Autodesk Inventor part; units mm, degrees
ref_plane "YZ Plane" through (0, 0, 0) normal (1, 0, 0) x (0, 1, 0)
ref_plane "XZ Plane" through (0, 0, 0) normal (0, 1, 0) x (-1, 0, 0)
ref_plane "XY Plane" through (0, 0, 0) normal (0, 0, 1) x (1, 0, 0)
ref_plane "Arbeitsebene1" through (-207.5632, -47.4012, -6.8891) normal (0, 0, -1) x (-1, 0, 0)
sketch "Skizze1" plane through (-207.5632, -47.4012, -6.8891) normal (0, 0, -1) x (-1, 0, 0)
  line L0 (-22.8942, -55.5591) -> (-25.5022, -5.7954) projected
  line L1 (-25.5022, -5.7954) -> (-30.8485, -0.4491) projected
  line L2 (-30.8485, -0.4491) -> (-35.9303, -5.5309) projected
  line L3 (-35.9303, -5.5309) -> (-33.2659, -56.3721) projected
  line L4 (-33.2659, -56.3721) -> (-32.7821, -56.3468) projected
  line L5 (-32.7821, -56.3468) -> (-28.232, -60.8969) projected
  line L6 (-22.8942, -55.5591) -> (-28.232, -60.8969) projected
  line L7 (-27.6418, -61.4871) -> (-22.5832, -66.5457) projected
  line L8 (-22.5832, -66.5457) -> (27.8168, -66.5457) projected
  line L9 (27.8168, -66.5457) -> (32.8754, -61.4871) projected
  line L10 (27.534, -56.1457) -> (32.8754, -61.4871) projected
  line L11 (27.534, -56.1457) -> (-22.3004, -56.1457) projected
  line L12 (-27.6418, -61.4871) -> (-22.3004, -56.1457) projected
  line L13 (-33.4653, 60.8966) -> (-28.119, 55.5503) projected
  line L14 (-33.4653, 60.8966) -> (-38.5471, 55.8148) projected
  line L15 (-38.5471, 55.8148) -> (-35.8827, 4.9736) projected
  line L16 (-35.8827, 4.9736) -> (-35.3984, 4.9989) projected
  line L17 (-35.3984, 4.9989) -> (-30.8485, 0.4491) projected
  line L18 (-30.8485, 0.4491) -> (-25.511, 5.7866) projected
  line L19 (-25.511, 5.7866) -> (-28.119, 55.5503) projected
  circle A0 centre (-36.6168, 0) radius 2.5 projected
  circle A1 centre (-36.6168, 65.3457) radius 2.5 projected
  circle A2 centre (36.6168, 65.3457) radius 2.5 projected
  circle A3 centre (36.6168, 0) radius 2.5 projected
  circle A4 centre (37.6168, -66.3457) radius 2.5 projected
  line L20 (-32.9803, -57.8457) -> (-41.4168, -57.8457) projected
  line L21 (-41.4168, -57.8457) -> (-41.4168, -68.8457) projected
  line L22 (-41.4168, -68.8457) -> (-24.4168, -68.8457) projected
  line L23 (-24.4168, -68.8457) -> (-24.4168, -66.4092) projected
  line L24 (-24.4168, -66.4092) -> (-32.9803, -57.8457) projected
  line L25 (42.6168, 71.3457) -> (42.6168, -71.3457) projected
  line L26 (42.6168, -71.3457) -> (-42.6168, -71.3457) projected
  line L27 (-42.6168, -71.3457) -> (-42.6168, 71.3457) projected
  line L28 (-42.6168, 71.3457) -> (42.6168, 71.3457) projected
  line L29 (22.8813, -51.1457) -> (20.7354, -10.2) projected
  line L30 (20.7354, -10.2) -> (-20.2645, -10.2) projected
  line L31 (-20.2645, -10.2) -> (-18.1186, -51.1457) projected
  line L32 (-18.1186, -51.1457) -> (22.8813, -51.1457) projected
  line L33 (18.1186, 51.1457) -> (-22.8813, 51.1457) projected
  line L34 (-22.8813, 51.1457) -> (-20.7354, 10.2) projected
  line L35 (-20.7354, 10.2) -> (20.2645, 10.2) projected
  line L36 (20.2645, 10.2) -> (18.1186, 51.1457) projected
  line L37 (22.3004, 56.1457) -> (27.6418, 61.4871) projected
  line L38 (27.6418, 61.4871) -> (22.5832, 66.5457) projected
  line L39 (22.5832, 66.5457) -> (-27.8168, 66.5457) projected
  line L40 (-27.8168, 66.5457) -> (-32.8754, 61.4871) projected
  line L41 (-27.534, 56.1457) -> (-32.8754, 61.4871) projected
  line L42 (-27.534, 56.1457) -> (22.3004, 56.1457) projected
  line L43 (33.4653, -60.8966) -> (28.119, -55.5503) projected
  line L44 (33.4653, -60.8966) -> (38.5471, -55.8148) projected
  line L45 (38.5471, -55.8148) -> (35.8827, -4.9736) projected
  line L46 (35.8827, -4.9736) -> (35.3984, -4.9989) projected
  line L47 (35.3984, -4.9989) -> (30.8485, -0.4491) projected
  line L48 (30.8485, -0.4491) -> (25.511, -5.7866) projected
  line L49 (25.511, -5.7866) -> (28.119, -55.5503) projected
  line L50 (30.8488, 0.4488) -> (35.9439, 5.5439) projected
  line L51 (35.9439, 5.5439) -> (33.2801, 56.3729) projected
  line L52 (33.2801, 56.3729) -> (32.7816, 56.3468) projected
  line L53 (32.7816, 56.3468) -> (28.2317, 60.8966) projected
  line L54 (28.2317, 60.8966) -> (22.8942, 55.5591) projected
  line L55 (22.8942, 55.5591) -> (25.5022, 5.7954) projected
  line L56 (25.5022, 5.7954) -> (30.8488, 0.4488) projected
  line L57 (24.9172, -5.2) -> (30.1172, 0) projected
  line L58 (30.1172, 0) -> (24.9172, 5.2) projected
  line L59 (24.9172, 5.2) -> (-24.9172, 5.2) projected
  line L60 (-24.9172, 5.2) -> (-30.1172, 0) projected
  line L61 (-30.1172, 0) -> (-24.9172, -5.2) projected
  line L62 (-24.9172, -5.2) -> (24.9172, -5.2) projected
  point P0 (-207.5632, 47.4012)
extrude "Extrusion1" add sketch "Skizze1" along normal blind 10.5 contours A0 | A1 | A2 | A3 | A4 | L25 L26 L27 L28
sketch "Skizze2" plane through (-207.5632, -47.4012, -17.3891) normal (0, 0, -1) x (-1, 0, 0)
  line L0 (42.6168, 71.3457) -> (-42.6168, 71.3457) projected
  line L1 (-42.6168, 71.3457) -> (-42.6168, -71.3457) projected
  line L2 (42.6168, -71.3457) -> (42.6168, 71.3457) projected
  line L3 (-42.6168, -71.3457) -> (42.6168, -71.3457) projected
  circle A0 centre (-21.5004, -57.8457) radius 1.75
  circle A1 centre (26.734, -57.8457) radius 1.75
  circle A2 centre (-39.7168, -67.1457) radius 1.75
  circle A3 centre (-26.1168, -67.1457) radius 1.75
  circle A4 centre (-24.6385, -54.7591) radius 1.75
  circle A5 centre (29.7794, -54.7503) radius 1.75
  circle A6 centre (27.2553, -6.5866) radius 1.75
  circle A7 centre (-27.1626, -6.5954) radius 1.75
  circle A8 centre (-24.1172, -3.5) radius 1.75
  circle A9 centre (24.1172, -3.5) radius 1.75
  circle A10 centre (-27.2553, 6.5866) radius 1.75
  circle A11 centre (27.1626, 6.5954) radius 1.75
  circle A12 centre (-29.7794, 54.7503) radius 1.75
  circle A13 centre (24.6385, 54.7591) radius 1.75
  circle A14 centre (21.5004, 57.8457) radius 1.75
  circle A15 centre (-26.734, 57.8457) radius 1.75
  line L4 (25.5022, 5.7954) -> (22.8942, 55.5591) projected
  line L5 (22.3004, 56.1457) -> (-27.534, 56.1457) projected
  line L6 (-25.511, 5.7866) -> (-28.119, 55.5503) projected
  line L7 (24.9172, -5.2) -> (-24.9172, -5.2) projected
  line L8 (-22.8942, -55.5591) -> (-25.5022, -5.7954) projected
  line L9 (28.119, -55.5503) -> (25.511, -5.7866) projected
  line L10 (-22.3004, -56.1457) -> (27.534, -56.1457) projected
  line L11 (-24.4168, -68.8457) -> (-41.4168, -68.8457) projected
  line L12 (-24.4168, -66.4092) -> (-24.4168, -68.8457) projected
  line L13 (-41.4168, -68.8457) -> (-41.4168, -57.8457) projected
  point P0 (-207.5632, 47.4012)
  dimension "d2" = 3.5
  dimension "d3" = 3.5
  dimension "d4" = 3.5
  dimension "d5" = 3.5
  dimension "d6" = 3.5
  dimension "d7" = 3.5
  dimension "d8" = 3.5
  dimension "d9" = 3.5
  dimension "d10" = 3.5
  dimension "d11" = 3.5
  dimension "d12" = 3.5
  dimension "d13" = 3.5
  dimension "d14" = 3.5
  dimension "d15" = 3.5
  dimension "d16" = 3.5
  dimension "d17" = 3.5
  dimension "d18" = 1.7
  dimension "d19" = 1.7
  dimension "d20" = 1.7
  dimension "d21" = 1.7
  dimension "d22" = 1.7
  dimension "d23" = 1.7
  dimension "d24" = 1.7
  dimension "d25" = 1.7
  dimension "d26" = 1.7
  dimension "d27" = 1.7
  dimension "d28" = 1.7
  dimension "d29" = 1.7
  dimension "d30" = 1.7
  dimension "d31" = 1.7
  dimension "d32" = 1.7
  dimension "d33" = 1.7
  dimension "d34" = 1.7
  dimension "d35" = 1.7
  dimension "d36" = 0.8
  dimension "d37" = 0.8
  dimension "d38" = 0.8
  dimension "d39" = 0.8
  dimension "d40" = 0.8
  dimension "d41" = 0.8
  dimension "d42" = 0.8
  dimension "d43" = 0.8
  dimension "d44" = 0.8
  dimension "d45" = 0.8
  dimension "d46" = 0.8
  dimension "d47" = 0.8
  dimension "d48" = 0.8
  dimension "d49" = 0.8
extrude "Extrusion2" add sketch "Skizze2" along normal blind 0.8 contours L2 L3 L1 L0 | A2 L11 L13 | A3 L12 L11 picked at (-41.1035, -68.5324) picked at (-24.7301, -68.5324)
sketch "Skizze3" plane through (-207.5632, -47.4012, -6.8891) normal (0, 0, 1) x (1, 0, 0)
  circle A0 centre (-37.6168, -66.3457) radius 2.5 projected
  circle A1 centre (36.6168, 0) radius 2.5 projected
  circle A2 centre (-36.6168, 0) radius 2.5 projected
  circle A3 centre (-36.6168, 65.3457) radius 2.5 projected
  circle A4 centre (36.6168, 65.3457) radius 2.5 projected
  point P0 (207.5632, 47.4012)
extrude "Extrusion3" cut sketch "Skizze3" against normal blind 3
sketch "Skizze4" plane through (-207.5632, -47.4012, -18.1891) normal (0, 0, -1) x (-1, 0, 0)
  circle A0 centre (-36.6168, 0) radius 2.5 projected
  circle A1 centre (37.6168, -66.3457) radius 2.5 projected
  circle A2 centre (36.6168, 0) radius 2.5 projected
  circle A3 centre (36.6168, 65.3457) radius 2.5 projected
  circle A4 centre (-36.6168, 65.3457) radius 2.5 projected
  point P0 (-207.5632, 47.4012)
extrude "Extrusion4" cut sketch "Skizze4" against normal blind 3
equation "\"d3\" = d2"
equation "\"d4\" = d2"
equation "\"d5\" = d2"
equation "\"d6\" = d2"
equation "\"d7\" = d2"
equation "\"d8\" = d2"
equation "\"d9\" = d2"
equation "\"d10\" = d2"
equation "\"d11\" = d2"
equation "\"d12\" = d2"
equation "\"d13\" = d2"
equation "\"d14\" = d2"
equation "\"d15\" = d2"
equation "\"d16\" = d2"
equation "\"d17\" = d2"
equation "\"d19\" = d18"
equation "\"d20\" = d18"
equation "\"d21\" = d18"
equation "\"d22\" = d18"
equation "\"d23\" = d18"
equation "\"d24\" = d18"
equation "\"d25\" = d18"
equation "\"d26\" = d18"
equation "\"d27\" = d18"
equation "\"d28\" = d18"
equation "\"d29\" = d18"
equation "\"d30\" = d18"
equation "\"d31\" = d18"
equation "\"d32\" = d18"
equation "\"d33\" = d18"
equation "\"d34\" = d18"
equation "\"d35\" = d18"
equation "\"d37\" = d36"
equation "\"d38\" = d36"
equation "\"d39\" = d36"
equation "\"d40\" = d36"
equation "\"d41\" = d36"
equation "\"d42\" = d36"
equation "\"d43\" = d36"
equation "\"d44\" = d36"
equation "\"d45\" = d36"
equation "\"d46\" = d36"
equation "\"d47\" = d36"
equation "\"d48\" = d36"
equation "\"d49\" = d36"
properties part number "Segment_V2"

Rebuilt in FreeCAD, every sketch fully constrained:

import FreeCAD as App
import Part
import Sketcher

V = App.Vector
Q = App.Units.Quantity


def add_polygon(sketch, points):
    """Adds a closed chain of lines whose ends are joined by coincident constraints."""
    first, n = sketch.GeometryCount, len(points)
    for a, b in zip(points, points[1:] + points[:1]):
        sketch.addGeometry(Part.LineSegment(App.Vector(*a, 0), App.Vector(*b, 0)), False)
    for i in range(n):
        sketch.addConstraint(Sketcher.Constraint("Coincident", first + i, 2, first + (i + 1) % n, 1))

doc = App.newDocument("Part")
body = doc.addObject("PartDesign::Body", "Body")

# Sketch on XY plane
sketch1 = body.newObject("Sketcher::SketchObject", "Sketch")
sketch1.AttachmentSupport = (doc.getObject("XY_Plane"), [""])
sketch1.MapMode = "FlatFace"
sketch1.AttachmentOffset = App.Placement(V(0, 0, -6.8891), App.Rotation())
add_polygon(sketch1, [(-250.18, -118.7469), (-250.18, 23.9445), (-164.9464, 23.9445), (-164.9464, -118.7469)])  # lines 0-3
add_polygon(sketch1, [(-166.1464, -105.2469), (-174.5829, -105.2469), (-183.1464, -113.8104), (-183.1464, -116.2469), (-166.1464, -116.2469)])  # lines 4-8
add_polygon(sketch1, [(-182.061, -53.1966), (-184.669, -102.9603), (-179.3312, -108.2981), (-174.7811, -103.748), (-174.2973, -103.7733), (-171.6329, -52.9321), (-176.7147, -47.8503)])  # lines 9-15
add_polygon(sketch1, [(-184.98, -113.9469), (-179.9214, -108.8883), (-185.2628, -103.5469), (-235.0972, -103.5469), (-240.4386, -108.8883), (-235.38, -113.9469)])  # lines 16-21
add_polygon(sketch1, [(-228.2986, -57.6012), (-230.4445, -98.5469), (-189.4446, -98.5469), (-187.2987, -57.6012)])  # lines 22-25
add_polygon(sketch1, [(-246.1103, -103.216), (-241.0285, -108.2978), (-235.6822, -102.9515), (-233.0742, -53.1878), (-238.4117, -47.8503), (-242.9616, -52.4001), (-243.4459, -52.3748)])  # lines 26-32
add_polygon(sketch1, [(-169.0161, 8.4136), (-174.0979, 13.4954), (-179.4442, 8.1491), (-182.0522, -41.6146), (-176.7147, -46.9521), (-172.1648, -42.4023), (-171.6805, -42.4276)])  # lines 33-39
add_polygon(sketch1, [(-184.6819, 3.7445), (-225.6818, 3.7445), (-227.8277, -37.2012), (-186.8278, -37.2012)])  # lines 40-43
add_polygon(sketch1, [(-235.205, 14.0859), (-229.8636, 8.7445), (-180.0292, 8.7445), (-174.6878, 14.0859), (-179.7464, 19.1445), (-230.1464, 19.1445)])  # lines 44-49
add_polygon(sketch1, [(-237.6804, -47.4012), (-232.4804, -52.6012), (-182.646, -52.6012), (-177.446, -47.4012), (-182.646, -42.2012), (-232.4804, -42.2012)])  # lines 50-55
add_polygon(sketch1, [(-243.5071, -41.8573), (-238.412, -46.9524), (-233.0654, -41.6058), (-230.4574, 8.1579), (-235.7949, 13.4954), (-240.3448, 8.9456), (-240.8433, 8.9717)])  # lines 56-62
sketch1.addConstraint([
    Sketcher.Constraint("Vertical", 0),
    Sketcher.Constraint("Horizontal", 1),
    Sketcher.Constraint("Vertical", 2),
    Sketcher.Constraint("Horizontal", 3),
    Sketcher.Constraint("Horizontal", 4),
    Sketcher.Constraint("Vertical", 6),
    Sketcher.Constraint("Horizontal", 7),
    Sketcher.Constraint("Vertical", 8),
    Sketcher.Constraint("Horizontal", 18),
    Sketcher.Constraint("Horizontal", 21),
    Sketcher.Constraint("Horizontal", 23),
    Sketcher.Constraint("Horizontal", 25),
    Sketcher.Constraint("Horizontal", 40),
    Sketcher.Constraint("Horizontal", 42),
    Sketcher.Constraint("Horizontal", 45),
    Sketcher.Constraint("Horizontal", 48),
    Sketcher.Constraint("Horizontal", 51),
    Sketcher.Constraint("Horizontal", 54),
    Sketcher.Constraint("Perpendicular", 5, 10),
    Sketcher.Constraint("Perpendicular", 10, 11),
    Sketcher.Constraint("Perpendicular", 9, 12),
    Sketcher.Constraint("Perpendicular", 12, 13),
    Sketcher.Constraint("Perpendicular", 11, 14),
    Sketcher.Constraint("Perpendicular", 14, 15),
    Sketcher.Constraint("Parallel", 15, 16),
    Sketcher.Constraint("Perpendicular", 16, 17),
    Sketcher.Constraint("Perpendicular", 17, 19),
    Sketcher.Constraint("Perpendicular", 19, 20),
    Sketcher.Constraint("Parallel", 13, 22),
    Sketcher.Constraint("Parallel", 22, 24),
    Sketcher.Constraint("Parallel", 20, 26),
    Sketcher.Constraint("Perpendicular", 26, 27),
    Sketcher.Constraint("Parallel", 24, 28),
    Sketcher.Constraint("Perpendicular", 27, 29),
    Sketcher.Constraint("Perpendicular", 29, 30),
    Sketcher.Constraint("Perpendicular", 28, 31),
    Sketcher.Constraint("Perpendicular", 31, 32),
    Sketcher.Constraint("Perpendicular", 30, 33),
    Sketcher.Constraint("Perpendicular", 33, 34),
    Sketcher.Constraint("Parallel", 32, 35),
    Sketcher.Constraint("Perpendicular", 34, 36),
    Sketcher.Constraint("Perpendicular", 36, 37),
    Sketcher.Constraint("Perpendicular", 35, 38),
    Sketcher.Constraint("Perpendicular", 38, 39),
    Sketcher.Constraint("Parallel", 39, 41),
    Sketcher.Constraint("Parallel", 41, 43),
    Sketcher.Constraint("Perpendicular", 37, 44),
    Sketcher.Constraint("Perpendicular", 44, 46),
    Sketcher.Constraint("Perpendicular", 46, 47),
    Sketcher.Constraint("Perpendicular", 47, 49),
    Sketcher.Constraint("Perpendicular", 49, 50),
    Sketcher.Constraint("Perpendicular", 50, 52),
    Sketcher.Constraint("Perpendicular", 52, 53),
    Sketcher.Constraint("Perpendicular", 53, 55),
    Sketcher.Constraint("Perpendicular", 55, 56),
    Sketcher.Constraint("Perpendicular", 56, 57),
    Sketcher.Constraint("Parallel", 43, 58),
    Sketcher.Constraint("Perpendicular", 57, 59),
    Sketcher.Constraint("Perpendicular", 59, 60),
    Sketcher.Constraint("Perpendicular", 58, 61),
    Sketcher.Constraint("Perpendicular", 61, 62),
    Sketcher.Constraint("Horizontal", 16, 2, 19, 2),
    Sketcher.Constraint("Horizontal", 14, 2, 29, 2),
    Sketcher.Constraint("Horizontal", 46, 2, 49, 2),
    Sketcher.Constraint("Horizontal", 52, 2, 55, 2),
    Sketcher.Constraint("Horizontal", 33, 2, 59, 2),
    Sketcher.Constraint("Vertical", 14, 2, 36, 2),
    Sketcher.Constraint("Vertical", 51, 2, 53, 2),
    Sketcher.Constraint("Vertical", 50, 2, 54, 2),
    Sketcher.Constraint("Equal", 25, 40),
    Sketcher.Constraint("Equal", 18, 45),
    Sketcher.Constraint("Equal", 21, 48),
    Sketcher.Constraint("Equal", 45, 51),
    Sketcher.Constraint("Equal", 14, 26),
    Sketcher.Constraint("Equal", 15, 27),
    Sketcher.Constraint("Equal", 9, 28),
    Sketcher.Constraint("Equal", 13, 32),
    Sketcher.Constraint("Equal", 26, 33),
    Sketcher.Constraint("Equal", 27, 34),
    Sketcher.Constraint("Equal", 28, 35),
    Sketcher.Constraint("Equal", 29, 36),
    Sketcher.Constraint("Equal", 30, 37),
    Sketcher.Constraint("Equal", 24, 41),
    Sketcher.Constraint("Equal", 19, 44),
    Sketcher.Constraint("Equal", 35, 58),
    Sketcher.Constraint("Equal", 36, 59),
    Sketcher.Constraint("Equal", 37, 60),
    Sketcher.Constraint("DistanceX", 7, 1, 7, 2, Q("17 mm")),
    Sketcher.Constraint("DistanceX", 23, 1, 23, 2, Q("41 mm")),
    Sketcher.Constraint("DistanceY", 8, 1, 8, 2, Q("11 mm")),
    Sketcher.Constraint("Angle", 9, Q("-93 deg")),
    Sketcher.Constraint("DistanceX", 21, 1, 21, 2, Q("50.4 mm")),
    Sketcher.Constraint("DistanceY", 30, 2, -1, 1, Q("52.4 mm")),
    Sketcher.Constraint("DistanceX", 0, 2, -1, 1, Q("250.18 mm")),
    Sketcher.Constraint("DistanceX", 20, 2, -1, 1, Q("235.38 mm")),
    Sketcher.Constraint("Distance", 9, Q("49.832 mm")),
    Sketcher.Constraint("Distance", 13, Q("50.911 mm")),
    Sketcher.Constraint("Distance", 16, Q("7.154 mm")),
    Sketcher.Constraint("Distance", 17, Q("7.554 mm")),
    Sketcher.Constraint("Distance", 22, Q("41.002 mm")),
    Sketcher.Constraint("Distance", 31, Q("0.485 mm")),
    Sketcher.Constraint("Distance", 50, Q("7.354 mm")),
    Sketcher.Constraint("DistanceX", 1, 1, 1, 2, Q("85.2336 mm")),
    Sketcher.Constraint("DistanceX", 4, 2, 4, 1, Q("8.4365 mm")),
    Sketcher.Constraint("DistanceY", 0, 1, 0, 2, Q("142.6914 mm")),
    Sketcher.Constraint("DistanceY", 2, 2, -1, 1, Q("118.747 mm")),
    Sketcher.Constraint("DistanceX", 4, 2, -1, 1, Q("174.583 mm")),
    Sketcher.Constraint("DistanceY", 4, 2, -1, 1, Q("105.247 mm")),
    Sketcher.Constraint("DistanceX", 9, 2, -1, 1, Q("184.669 mm")),
    Sketcher.Constraint("DistanceY", 10, 2, -1, 1, Q("108.298 mm")),
    Sketcher.Constraint("DistanceX", 11, 2, -1, 1, Q("174.781 mm")),
    Sketcher.Constraint("DistanceX", 13, 2, -1, 1, Q("171.633 mm")),
    Sketcher.Constraint("DistanceY", 17, 2, -1, 1, Q("103.547 mm")),
    Sketcher.Constraint("DistanceY", 22, 2, -1, 1, Q("98.547 mm")),
    Sketcher.Constraint("DistanceX", 31, 2, -1, 1, Q("243.446 mm")),
    Sketcher.Constraint("DistanceY", -1, 1, 34, 2, Q("8.149 mm")),
    Sketcher.Constraint("DistanceX", 43, 2, -1, 1, Q("184.682 mm")),
    Sketcher.Constraint("DistanceY", -1, 1, 46, 2, Q("14.086 mm")),
    Sketcher.Constraint("DistanceX", 49, 2, -1, 1, Q("235.205 mm")),
    Sketcher.Constraint("DistanceX", 51, 2, -1, 1, Q("182.646 mm")),
    Sketcher.Constraint("DistanceX", 56, 2, -1, 1, Q("238.412 mm")),
    Sketcher.Constraint("DistanceX", 59, 2, -1, 1, Q("235.795 mm")),
    Sketcher.Constraint("DistanceX", 62, 2, -1, 1, Q("243.507 mm")),
    Sketcher.Constraint("DistanceX", 22, 2, -1, 1, Q("230.4445 mm")),
    Sketcher.Constraint("DistanceY", -1, 1, 40, 2, Q("3.7445 mm")),
    Sketcher.Constraint("DistanceY", 50, 2, -1, 1, Q("52.6012 mm")),
])
pad1 = body.newObject("PartDesign::Pad", "Pad")
pad1.Profile = sketch1
pad1.Length = 10.5
pad1.Reversed = True

# Sketch on XY plane
sketch2 = body.newObject("Sketcher::SketchObject", "Sketch001")
sketch2.AttachmentSupport = (doc.getObject("XY_Plane"), [""])
sketch2.MapMode = "FlatFace"
sketch2.AttachmentOffset = App.Placement(V(0, 0, -17.3891), App.Rotation())
add_polygon(sketch2, [(-250.18, -118.7469), (-250.18, 23.9445), (-164.9464, 23.9445), (-164.9464, -118.7469)])  # lines 0-3
sketch2.addGeometry(Part.Circle(V(-167.8464, -114.5469, 0), V(0, 0, 1), 1.75), False)  # 4
sketch2.addGeometry(Part.Circle(V(-181.4464, -114.5469, 0), V(0, 0, 1), 1.75), False)  # 5
sketch2.addGeometry(Part.Circle(V(-182.9247, -102.1603, 0), V(0, 0, 1), 1.75), False)  # 6
sketch2.addGeometry(Part.Circle(V(-186.0628, -105.2469, 0), V(0, 0, 1), 1.75), False)  # 7
sketch2.addGeometry(Part.Circle(V(-180.4006, -53.9966, 0), V(0, 0, 1), 1.75), False)  # 8
sketch2.addGeometry(Part.Circle(V(-183.446, -50.9012, 0), V(0, 0, 1), 1.75), False)  # 9
sketch2.addGeometry(Part.Circle(V(-234.2972, -105.2469, 0), V(0, 0, 1), 1.75), False)  # 10
sketch2.addGeometry(Part.Circle(V(-237.3426, -102.1515, 0), V(0, 0, 1), 1.75), False)  # 11
sketch2.addGeometry(Part.Circle(V(-231.6804, -50.9012, 0), V(0, 0, 1), 1.75), False)  # 12
sketch2.addGeometry(Part.Circle(V(-234.8185, -53.9878, 0), V(0, 0, 1), 1.75), False)  # 13
sketch2.addGeometry(Part.Circle(V(-180.3079, -40.8146, 0), V(0, 0, 1), 1.75), False)  # 14
sketch2.addGeometry(Part.Circle(V(-177.7838, 7.3491, 0), V(0, 0, 1), 1.75), False)  # 15
sketch2.addGeometry(Part.Circle(V(-180.8292, 10.4445, 0), V(0, 0, 1), 1.75), False)  # 16
sketch2.addGeometry(Part.Circle(V(-234.7258, -40.8058, 0), V(0, 0, 1), 1.75), False)  # 17
sketch2.addGeometry(Part.Circle(V(-229.0636, 10.4445, 0), V(0, 0, 1), 1.75), False)  # 18
sketch2.addGeometry(Part.Circle(V(-232.2017, 7.3579, 0), V(0, 0, 1), 1.75), False)  # 19
sketch2.addConstraint([
    Sketcher.Constraint("Vertical", 0),
    Sketcher.Constraint("Horizontal", 1),
    Sketcher.Constraint("Vertical", 2),
    Sketcher.Constraint("Horizontal", 3),
    Sketcher.Constraint("Equal", 4, 5),
    Sketcher.Constraint("Equal", 5, 6),
    Sketcher.Constraint("Equal", 6, 7),
    Sketcher.Constraint("Equal", 7, 8),
    Sketcher.Constraint("Equal", 8, 9),
    Sketcher.Constraint("Equal", 9, 10),
    Sketcher.Constraint("Equal", 10, 11),
    Sketcher.Constraint("Equal", 11, 12),
    Sketcher.Constraint("Equal", 12, 13),
    Sketcher.Constraint("Equal", 13, 14),
    Sketcher.Constraint("Equal", 14, 15),
    Sketcher.Constraint("Equal", 15, 16),
    Sketcher.Constraint("Equal", 16, 17),
    Sketcher.Constraint("Equal", 17, 18),
    Sketcher.Constraint("Equal", 18, 19),
    Sketcher.Constraint("Horizontal", 4, 3, 5, 3),
    Sketcher.Constraint("Horizontal", 7, 3, 10, 3),
    Sketcher.Constraint("Horizontal", 9, 3, 12, 3),
    Sketcher.Constraint("Horizontal", 16, 3, 18, 3),
    Sketcher.Constraint("Diameter", 4, Q("3.5 mm")),
    Sketcher.Constraint("DistanceX", 5, 3, 4, 3, Q("13.6 mm")),
    Sketcher.Constraint("DistanceY", 5, 3, 7, 3, Q("9.3 mm")),
    Sketcher.Constraint("DistanceY", 18, 3, 0, 2, Q("13.5 mm")),
    Sketcher.Constraint("DistanceX", 4, 3, 2, 2, Q("2.9 mm")),
    Sketcher.Constraint("DistanceY", 2, 2, 4, 3, Q("4.2 mm")),
    Sketcher.Constraint("DistanceX", 0, 2, -1, 1, Q("250.18 mm")),
    Sketcher.Constraint("DistanceX", 1, 1, 1, 2, Q("85.2336 mm")),
    Sketcher.Constraint("DistanceY", 0, 1, 0, 2, Q("142.6914 mm")),
    Sketcher.Constraint("DistanceY", 4, 3, -1, 1, Q("114.547 mm")),
    Sketcher.Constraint("DistanceX", 9, 3, -1, 1, Q("183.446 mm")),
    Sketcher.Constraint("DistanceX", 14, 3, -1, 1, Q("180.308 mm")),
    Sketcher.Constraint("DistanceY", -1, 1, 15, 3, Q("7.349 mm")),
    Sketcher.Constraint("DistanceY", -1, 1, 19, 3, Q("7.358 mm")),
    Sketcher.Constraint("DistanceX", 7, 3, 6, 3, Q("3.138 mm")),
    Sketcher.Constraint("DistanceX", 6, 3, 8, 3, Q("2.524 mm")),
    Sketcher.Constraint("DistanceY", 6, 3, 9, 3, Q("51.259 mm")),
    Sketcher.Constraint("DistanceX", 11, 3, 6, 3, Q("54.418 mm")),
    Sketcher.Constraint("DistanceX", 13, 3, 12, 3, Q("3.138 mm")),
    Sketcher.Constraint("DistanceX", 11, 3, 13, 3, Q("2.524 mm")),
    Sketcher.Constraint("DistanceY", 10, 3, 13, 3, Q("51.259 mm")),
    Sketcher.Constraint("DistanceY", 8, 3, 14, 3, Q("13.182 mm")),
    Sketcher.Constraint("DistanceX", 14, 3, 15, 3, Q("2.524 mm")),
    Sketcher.Constraint("DistanceY", 14, 3, 16, 3, Q("51.259 mm")),
    Sketcher.Constraint("DistanceY", 13, 3, 17, 3, Q("13.182 mm")),
    Sketcher.Constraint("DistanceX", 17, 3, 14, 3, Q("54.418 mm")),
    Sketcher.Constraint("DistanceX", 13, 3, 18, 3, Q("5.755 mm")),
    Sketcher.Constraint("DistanceX", 19, 3, 18, 3, Q("3.138 mm")),
    Sketcher.Constraint("DistanceX", 17, 3, 19, 3, Q("2.524 mm")),
    Sketcher.Constraint("DistanceY", 12, 3, 19, 3, Q("58.259 mm")),
    Sketcher.Constraint("DistanceX", 10, 3, -1, 1, Q("234.2972 mm")),
    Sketcher.Constraint("DistanceY", 11, 3, -1, 1, Q("102.1515 mm")),
    Sketcher.Constraint("DistanceX", 16, 3, -1, 1, Q("180.8292 mm")),
])
pad2 = body.newObject("PartDesign::Pad", "Pad001")
pad2.Profile = sketch2
pad2.Length = 0.8
pad2.Reversed = True

# Sketch on XY plane
sketch3 = body.newObject("Sketcher::SketchObject", "Sketch002")
sketch3.AttachmentSupport = (doc.getObject("XY_Plane"), [""])
sketch3.MapMode = "FlatFace"
sketch3.AttachmentOffset = App.Placement(V(0, 0, -6.8891), App.Rotation())
sketch3.addGeometry([
    Part.Circle(V(-245.18, -113.7469, 0), V(0, 0, 1), 2.5),  # 0
    Part.Circle(V(-170.9464, -47.4012, 0), V(0, 0, 1), 2.5),  # 1
    Part.Circle(V(-244.18, -47.4012, 0), V(0, 0, 1), 2.5),  # 2
    Part.Circle(V(-244.18, 17.9445, 0), V(0, 0, 1), 2.5),  # 3
    Part.Circle(V(-170.9464, 17.9445, 0), V(0, 0, 1), 2.5),  # 4
], False)
sketch3.addConstraint([
    Sketcher.Constraint("Equal", 0, 1),
    Sketcher.Constraint("Equal", 1, 2),
    Sketcher.Constraint("Equal", 2, 3),
    Sketcher.Constraint("Equal", 3, 4),
    Sketcher.Constraint("Horizontal", 1, 3, 2, 3),
    Sketcher.Constraint("Horizontal", 3, 3, 4, 3),
    Sketcher.Constraint("Vertical", 2, 3, 3, 3),
    Sketcher.Constraint("Vertical", 1, 3, 4, 3),
    Sketcher.Constraint("Diameter", 0, Q("5 mm")),
    Sketcher.Constraint("DistanceX", 0, 3, 2, 3, Q("1 mm")),
    Sketcher.Constraint("DistanceX", 0, 3, -1, 1, Q("245.18 mm")),
    Sketcher.Constraint("DistanceY", 0, 3, -1, 1, Q("113.747 mm")),
    Sketcher.Constraint("DistanceX", 1, 3, -1, 1, Q("170.9464 mm")),
    Sketcher.Constraint("DistanceY", 1, 3, -1, 1, Q("47.4012 mm")),
    Sketcher.Constraint("DistanceY", -1, 1, 3, 3, Q("17.9445 mm")),
])
pocket1 = body.newObject("PartDesign::Pocket", "Pocket")
pocket1.Profile = sketch3
pocket1.Length = 3

# Sketch on XY plane
sketch4 = body.newObject("Sketcher::SketchObject", "Sketch003")
sketch4.AttachmentSupport = (doc.getObject("XY_Plane"), [""])
sketch4.MapMode = "FlatFace"
sketch4.AttachmentOffset = App.Placement(V(0, 0, -18.1891), App.Rotation())
sketch4.addGeometry([
    Part.Circle(V(-170.9464, -47.4012, 0), V(0, 0, 1), 2.5),  # 0
    Part.Circle(V(-245.18, -113.7469, 0), V(0, 0, 1), 2.5),  # 1
    Part.Circle(V(-244.18, -47.4012, 0), V(0, 0, 1), 2.5),  # 2
    Part.Circle(V(-244.18, 17.9445, 0), V(0, 0, 1), 2.5),  # 3
    Part.Circle(V(-170.9464, 17.9445, 0), V(0, 0, 1), 2.5),  # 4
], False)
sketch4.addConstraint([
    Sketcher.Constraint("Equal", 0, 1),
    Sketcher.Constraint("Equal", 1, 2),
    Sketcher.Constraint("Equal", 2, 3),
    Sketcher.Constraint("Equal", 3, 4),
    Sketcher.Constraint("Horizontal", 0, 3, 2, 3),
    Sketcher.Constraint("Horizontal", 3, 3, 4, 3),
    Sketcher.Constraint("Vertical", 2, 3, 3, 3),
    Sketcher.Constraint("Vertical", 0, 3, 4, 3),
    Sketcher.Constraint("Diameter", 0, Q("5 mm")),
    Sketcher.Constraint("DistanceX", 1, 3, 2, 3, Q("1 mm")),
    Sketcher.Constraint("DistanceX", 1, 3, -1, 1, Q("245.18 mm")),
    Sketcher.Constraint("DistanceY", 1, 3, -1, 1, Q("113.747 mm")),
    Sketcher.Constraint("DistanceX", 0, 3, -1, 1, Q("170.9464 mm")),
    Sketcher.Constraint("DistanceY", 0, 3, -1, 1, Q("47.4012 mm")),
    Sketcher.Constraint("DistanceY", -1, 1, 3, 3, Q("17.9445 mm")),
])
pocket2 = body.newObject("PartDesign::Pocket", "Pocket001")
pocket2.Profile = sketch4
pocket2.Length = 3
pocket2.Reversed = True

doc.recompute()
